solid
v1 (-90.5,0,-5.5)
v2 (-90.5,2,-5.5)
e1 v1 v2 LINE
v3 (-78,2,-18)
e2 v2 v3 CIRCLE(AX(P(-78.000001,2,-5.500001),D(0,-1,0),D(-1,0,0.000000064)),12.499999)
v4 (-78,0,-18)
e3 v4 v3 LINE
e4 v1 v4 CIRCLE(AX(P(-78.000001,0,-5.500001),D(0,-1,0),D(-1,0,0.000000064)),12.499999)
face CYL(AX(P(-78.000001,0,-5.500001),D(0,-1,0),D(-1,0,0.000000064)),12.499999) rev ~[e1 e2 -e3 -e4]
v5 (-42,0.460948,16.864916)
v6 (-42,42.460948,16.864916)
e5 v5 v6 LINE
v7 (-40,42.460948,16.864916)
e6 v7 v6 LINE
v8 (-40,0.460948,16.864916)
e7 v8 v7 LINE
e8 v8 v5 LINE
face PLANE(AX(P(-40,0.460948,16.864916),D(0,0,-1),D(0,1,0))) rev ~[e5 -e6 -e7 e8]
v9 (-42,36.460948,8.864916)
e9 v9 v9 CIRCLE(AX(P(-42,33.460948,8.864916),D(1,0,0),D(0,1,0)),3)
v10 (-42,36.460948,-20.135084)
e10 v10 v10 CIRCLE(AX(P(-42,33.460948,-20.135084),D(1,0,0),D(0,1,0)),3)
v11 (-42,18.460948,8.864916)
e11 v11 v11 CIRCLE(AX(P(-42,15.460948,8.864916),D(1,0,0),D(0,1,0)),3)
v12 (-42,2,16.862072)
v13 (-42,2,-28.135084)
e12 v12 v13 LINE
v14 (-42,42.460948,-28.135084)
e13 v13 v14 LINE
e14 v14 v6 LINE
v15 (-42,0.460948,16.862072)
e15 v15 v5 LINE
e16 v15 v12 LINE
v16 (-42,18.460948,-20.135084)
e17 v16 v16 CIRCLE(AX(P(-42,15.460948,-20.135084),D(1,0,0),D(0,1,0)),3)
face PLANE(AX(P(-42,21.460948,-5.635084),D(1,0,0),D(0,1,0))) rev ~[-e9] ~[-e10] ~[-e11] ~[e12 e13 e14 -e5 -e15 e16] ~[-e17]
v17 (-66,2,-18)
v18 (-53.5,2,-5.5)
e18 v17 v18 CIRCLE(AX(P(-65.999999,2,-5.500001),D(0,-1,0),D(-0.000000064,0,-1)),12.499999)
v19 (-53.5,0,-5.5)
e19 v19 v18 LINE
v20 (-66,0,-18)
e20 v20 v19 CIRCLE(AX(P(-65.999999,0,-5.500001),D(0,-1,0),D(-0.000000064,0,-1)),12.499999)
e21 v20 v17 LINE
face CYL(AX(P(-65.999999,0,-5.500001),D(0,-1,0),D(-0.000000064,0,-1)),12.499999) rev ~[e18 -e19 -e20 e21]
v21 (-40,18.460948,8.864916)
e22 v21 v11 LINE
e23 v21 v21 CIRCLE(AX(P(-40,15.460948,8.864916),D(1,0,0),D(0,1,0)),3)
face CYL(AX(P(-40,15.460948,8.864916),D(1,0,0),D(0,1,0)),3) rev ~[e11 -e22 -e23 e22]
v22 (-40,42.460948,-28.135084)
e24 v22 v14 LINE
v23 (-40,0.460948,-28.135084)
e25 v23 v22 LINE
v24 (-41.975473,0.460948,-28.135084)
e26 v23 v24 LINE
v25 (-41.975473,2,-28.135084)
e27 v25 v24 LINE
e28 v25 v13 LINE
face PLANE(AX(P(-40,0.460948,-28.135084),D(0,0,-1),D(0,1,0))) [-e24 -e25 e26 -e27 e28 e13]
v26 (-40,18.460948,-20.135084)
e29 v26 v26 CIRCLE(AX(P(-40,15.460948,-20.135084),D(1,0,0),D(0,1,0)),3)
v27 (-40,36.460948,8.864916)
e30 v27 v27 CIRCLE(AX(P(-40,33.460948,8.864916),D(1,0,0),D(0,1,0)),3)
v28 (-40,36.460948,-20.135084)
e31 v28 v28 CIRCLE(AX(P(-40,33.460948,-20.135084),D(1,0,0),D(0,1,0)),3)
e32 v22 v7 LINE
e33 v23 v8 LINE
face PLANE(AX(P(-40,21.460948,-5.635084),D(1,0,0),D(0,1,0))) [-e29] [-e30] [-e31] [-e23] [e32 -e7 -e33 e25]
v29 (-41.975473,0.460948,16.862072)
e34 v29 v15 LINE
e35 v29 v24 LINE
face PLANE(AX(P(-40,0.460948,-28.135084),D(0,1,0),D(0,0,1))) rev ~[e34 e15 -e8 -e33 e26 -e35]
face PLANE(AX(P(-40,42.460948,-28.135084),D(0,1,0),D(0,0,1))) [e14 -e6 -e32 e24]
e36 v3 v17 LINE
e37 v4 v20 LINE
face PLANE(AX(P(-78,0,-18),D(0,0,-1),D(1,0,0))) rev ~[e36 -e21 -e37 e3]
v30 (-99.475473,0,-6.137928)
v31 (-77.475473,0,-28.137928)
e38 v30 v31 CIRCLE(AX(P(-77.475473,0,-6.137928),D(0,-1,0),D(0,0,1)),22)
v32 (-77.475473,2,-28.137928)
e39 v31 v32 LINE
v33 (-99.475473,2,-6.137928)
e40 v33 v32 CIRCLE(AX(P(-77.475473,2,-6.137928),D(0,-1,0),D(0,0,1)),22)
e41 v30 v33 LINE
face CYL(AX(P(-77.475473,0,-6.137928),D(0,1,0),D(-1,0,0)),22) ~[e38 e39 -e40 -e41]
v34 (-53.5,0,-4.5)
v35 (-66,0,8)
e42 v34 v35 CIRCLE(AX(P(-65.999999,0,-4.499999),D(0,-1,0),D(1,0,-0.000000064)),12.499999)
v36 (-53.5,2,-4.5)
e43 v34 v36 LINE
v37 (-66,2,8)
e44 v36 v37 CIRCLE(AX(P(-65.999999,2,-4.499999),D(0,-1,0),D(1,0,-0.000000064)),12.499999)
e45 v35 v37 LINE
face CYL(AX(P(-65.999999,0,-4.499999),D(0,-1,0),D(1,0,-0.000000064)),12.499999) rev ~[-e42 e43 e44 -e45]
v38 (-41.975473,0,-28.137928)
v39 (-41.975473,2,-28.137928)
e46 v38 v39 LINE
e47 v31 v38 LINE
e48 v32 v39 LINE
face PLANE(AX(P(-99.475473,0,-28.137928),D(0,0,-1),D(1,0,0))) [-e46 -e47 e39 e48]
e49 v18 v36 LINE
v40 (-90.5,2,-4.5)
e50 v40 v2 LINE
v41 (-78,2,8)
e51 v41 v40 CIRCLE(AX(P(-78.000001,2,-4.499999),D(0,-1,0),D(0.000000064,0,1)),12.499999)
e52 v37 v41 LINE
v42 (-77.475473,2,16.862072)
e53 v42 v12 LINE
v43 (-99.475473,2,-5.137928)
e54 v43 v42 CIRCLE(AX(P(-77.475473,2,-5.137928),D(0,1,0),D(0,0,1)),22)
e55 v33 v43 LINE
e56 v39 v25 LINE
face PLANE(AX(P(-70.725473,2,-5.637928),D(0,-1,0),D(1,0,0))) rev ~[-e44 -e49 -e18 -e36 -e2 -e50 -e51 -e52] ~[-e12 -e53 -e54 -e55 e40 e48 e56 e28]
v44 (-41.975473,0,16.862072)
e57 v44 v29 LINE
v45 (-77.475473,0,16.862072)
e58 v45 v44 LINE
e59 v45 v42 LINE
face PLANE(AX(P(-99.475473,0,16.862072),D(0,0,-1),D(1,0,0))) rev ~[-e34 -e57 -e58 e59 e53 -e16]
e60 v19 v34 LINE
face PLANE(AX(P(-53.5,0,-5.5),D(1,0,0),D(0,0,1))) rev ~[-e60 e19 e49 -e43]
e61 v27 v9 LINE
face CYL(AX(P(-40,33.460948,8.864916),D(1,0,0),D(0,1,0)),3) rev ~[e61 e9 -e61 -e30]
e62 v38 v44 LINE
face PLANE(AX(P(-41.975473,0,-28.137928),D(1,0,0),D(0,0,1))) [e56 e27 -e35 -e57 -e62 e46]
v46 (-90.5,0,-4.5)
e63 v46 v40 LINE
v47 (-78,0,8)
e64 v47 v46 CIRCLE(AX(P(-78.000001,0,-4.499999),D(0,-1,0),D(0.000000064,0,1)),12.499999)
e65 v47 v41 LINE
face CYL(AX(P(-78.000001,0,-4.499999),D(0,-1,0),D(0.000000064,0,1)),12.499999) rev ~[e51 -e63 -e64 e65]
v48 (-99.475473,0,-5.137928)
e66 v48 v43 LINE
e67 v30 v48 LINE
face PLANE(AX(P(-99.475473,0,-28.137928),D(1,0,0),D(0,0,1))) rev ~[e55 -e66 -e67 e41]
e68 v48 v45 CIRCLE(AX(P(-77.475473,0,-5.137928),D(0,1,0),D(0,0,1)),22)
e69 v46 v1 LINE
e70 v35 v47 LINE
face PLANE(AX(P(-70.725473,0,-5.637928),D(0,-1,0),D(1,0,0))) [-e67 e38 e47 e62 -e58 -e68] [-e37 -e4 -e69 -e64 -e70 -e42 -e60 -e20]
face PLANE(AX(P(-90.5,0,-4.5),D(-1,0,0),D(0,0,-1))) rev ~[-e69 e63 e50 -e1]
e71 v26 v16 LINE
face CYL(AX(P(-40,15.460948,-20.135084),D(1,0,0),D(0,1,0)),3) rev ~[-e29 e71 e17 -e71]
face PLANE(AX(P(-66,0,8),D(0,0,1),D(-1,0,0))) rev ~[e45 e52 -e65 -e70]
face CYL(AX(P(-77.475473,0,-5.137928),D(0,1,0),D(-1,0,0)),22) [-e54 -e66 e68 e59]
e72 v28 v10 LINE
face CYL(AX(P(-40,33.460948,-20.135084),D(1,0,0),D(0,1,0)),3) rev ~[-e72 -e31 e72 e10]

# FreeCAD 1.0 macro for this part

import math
import FreeCAD as App
import Part
import Sketcher


def edges_at(feature, points):
    """Names of the edges that pass closest to the given points."""
    edges = feature.Shape.Edges
    near = lambda p: min(range(len(edges)), key=lambda i: edges[i].distToShape(Part.Vertex(*p))[0])
    return sorted({f"Edge{near(p) + 1}" for p in points})

doc = App.newDocument("Part")
body = doc.addObject("PartDesign::Body", "Body")

# Sketch on YZ plane
sketch1 = body.newObject("Sketcher::SketchObject", "Sketch")
sketch1.AttachmentSupport = (doc.getObject("YZ_Plane"), [""])
sketch1.MapMode = "FlatFace"
sketch1.AttachmentOffset = App.Placement(App.Vector(0, 0, -40), App.Rotation())
sketch1.addGeometry([
    Part.LineSegment(App.Vector(0.5, 16.9, 0), App.Vector(0.5, -28.1, 0)),  # 0
    Part.LineSegment(App.Vector(0.5, -28.1, 0), App.Vector(42.5, -28.1, 0)),  # 1
    Part.LineSegment(App.Vector(42.5, -28.1, 0), App.Vector(42.5, 16.9, 0)),  # 2
    Part.LineSegment(App.Vector(42.5, 16.9, 0), App.Vector(0.5, 16.9, 0)),  # 3
    Part.Circle(App.Vector(15.5, -20.1, 0), App.Vector(0, 0, 1), 3),  # 4
    Part.Circle(App.Vector(33.5, -20.1, 0), App.Vector(0, 0, 1), 3),  # 5
    Part.Circle(App.Vector(15.5, 8.9, 0), App.Vector(0, 0, 1), 3),  # 6
    Part.Circle(App.Vector(33.5, 8.9, 0), App.Vector(0, 0, 1), 3),  # 7
], False)
sketch1.addConstraint([
    Sketcher.Constraint("Coincident", 0, 2, 1, 1),
    Sketcher.Constraint("Coincident", 1, 2, 2, 1),
    Sketcher.Constraint("Coincident", 2, 2, 3, 1),
    Sketcher.Constraint("Coincident", 3, 2, 0, 1),
    Sketcher.Constraint("Vertical", 0),
    Sketcher.Constraint("Horizontal", 1),
    Sketcher.Constraint("Vertical", 2),
    Sketcher.Constraint("Horizontal", 3),
    Sketcher.Constraint("Equal", 4, 5),
    Sketcher.Constraint("Equal", 5, 6),
    Sketcher.Constraint("Equal", 6, 7),
    Sketcher.Constraint("Horizontal", 4, 3, 5, 3),
    Sketcher.Constraint("Horizontal", 6, 3, 7, 3),
    Sketcher.Constraint("Vertical", 4, 3, 6, 3),
    Sketcher.Constraint("Vertical", 5, 3, 7, 3),
    Sketcher.Constraint("Diameter", 4, 6.0),
    Sketcher.Constraint("DistanceX", 1, 1, 1, 2, 42.0),
    Sketcher.Constraint("DistanceY", 0, 2, 0, 1, 45.0),
    Sketcher.Constraint("DistanceX", 4, 3, 5, 3, 18.0),
    Sketcher.Constraint("DistanceY", 4, 3, 6, 3, 29.0),
    Sketcher.Constraint("DistanceX", 0, 2, 4, 3, 15.0),
    Sketcher.Constraint("DistanceY", 0, 2, 4, 3, 8.0),
    Sketcher.Constraint("DistanceX", -1, 1, 5, 3, 33.460948),
    Sketcher.Constraint("DistanceY", 4, 3, -1, 1, 20.135084),
])
pad1 = body.newObject("PartDesign::Pad", "Pad")
pad1.Profile = sketch1
pad1.Length = 2
pad1.Reversed = True

# Sketch on XZ plane
sketch2 = body.newObject("Sketcher::SketchObject", "Sketch001")
sketch2.AttachmentSupport = (doc.getObject("XZ_Plane"), [""])
sketch2.MapMode = "FlatFace"
sketch2.addGeometry([
    Part.LineSegment(App.Vector(-99.5, 16.9, 0), App.Vector(-99.5, -28.1, 0)),  # 0
    Part.LineSegment(App.Vector(-99.5, -28.1, 0), App.Vector(-42, -28.1, 0)),  # 1
    Part.LineSegment(App.Vector(-42, -28.1, 0), App.Vector(-42, 16.9, 0)),  # 2
    Part.LineSegment(App.Vector(-42, 16.9, 0), App.Vector(-99.5, 16.9, 0)),  # 3
    Part.LineSegment(App.Vector(-66, -18, 0), App.Vector(-78, -18, 0)),  # 4
    Part.ArcOfCircle(Part.Circle(App.Vector(-78, -5.5, 0), App.Vector(0, 0, 1), 12.5), math.radians(180), math.radians(270)),  # 5
    Part.LineSegment(App.Vector(-90.5, -5.5, 0), App.Vector(-90.5, -4.5, 0)),  # 6
    Part.ArcOfCircle(Part.Circle(App.Vector(-78, -4.5, 0), App.Vector(0, 0, 1), 12.5), math.radians(90), math.radians(180)),  # 7
    Part.LineSegment(App.Vector(-78, 8, 0), App.Vector(-66, 8, 0)),  # 8
    Part.ArcOfCircle(Part.Circle(App.Vector(-66, -4.5, 0), App.Vector(0, 0, 1), 12.5), math.radians(0), math.radians(90)),  # 9
    Part.LineSegment(App.Vector(-53.5, -4.5, 0), App.Vector(-53.5, -5.5, 0)),  # 10
    Part.ArcOfCircle(Part.Circle(App.Vector(-66, -5.5, 0), App.Vector(0, 0, 1), 12.5), math.radians(-90), math.radians(0)),  # 11
], False)
sketch2.addConstraint([
    Sketcher.Constraint("Coincident", 0, 2, 1, 1),
    Sketcher.Constraint("Coincident", 1, 2, 2, 1),
    Sketcher.Constraint("Coincident", 2, 2, 3, 1),
    Sketcher.Constraint("Coincident", 3, 2, 0, 1),
    Sketcher.Constraint("Tangent", 4, 2, 5, 2),
    Sketcher.Constraint("Tangent", 5, 1, 6, 1),
    Sketcher.Constraint("Tangent", 6, 2, 7, 2),
    Sketcher.Constraint("Tangent", 7, 1, 8, 1),
    Sketcher.Constraint("Tangent", 8, 2, 9, 2),
    Sketcher.Constraint("Tangent", 9, 1, 10, 1),
    Sketcher.Constraint("Tangent", 10, 2, 11, 2),
    Sketcher.Constraint("Tangent", 11, 1, 4, 1),
    Sketcher.Constraint("Vertical", 0),
    Sketcher.Constraint("Horizontal", 1),
    Sketcher.Constraint("Vertical", 2),
    Sketcher.Constraint("Horizontal", 3),
    Sketcher.Constraint("Horizontal", 4),
    Sketcher.Constraint("Vertical", 6),
    Sketcher.Constraint("Horizontal", 8),
    Sketcher.Constraint("Vertical", 10),
    Sketcher.Constraint("Equal", 5, 7),
    Sketcher.Constraint("Equal", 7, 9),
    Sketcher.Constraint("Equal", 9, 11),
    Sketcher.Constraint("Radius", 5, 12.499999),
    Sketcher.Constraint("DistanceX", 4, 2, 4, 1, 12.0),
    Sketcher.Constraint("DistanceY", 0, 2, 0, 1, 45.0),
    Sketcher.Constraint("DistanceY", 6, 1, 6, 2, 1.0),
    Sketcher.Constraint("DistanceX", 1, 1, 1, 2, 57.5),
    Sketcher.Constraint("DistanceX", 5, 3, -1, 1, 78.000001),
    Sketcher.Constraint("DistanceY", 4, 2, -1, 1, 18.0),
    Sketcher.Constraint("DistanceY", 0, 2, 7, 3, 23.637929),
    Sketcher.Constraint("DistanceX", 0, 2, -1, 1, 99.475473),
])
pad2 = body.newObject("PartDesign::Pad", "Pad001")
pad2.Profile = sketch2
pad2.Length = 2
pad2.Reversed = True
doc.recompute()

fillet = body.newObject("PartDesign::Fillet", "Fillet")
fillet.Base = (pad2, edges_at(pad2, [(-99.475, 1, -28.138), (-99.475, 1, 16.862)]))
fillet.Radius = 22

doc.recompute()
